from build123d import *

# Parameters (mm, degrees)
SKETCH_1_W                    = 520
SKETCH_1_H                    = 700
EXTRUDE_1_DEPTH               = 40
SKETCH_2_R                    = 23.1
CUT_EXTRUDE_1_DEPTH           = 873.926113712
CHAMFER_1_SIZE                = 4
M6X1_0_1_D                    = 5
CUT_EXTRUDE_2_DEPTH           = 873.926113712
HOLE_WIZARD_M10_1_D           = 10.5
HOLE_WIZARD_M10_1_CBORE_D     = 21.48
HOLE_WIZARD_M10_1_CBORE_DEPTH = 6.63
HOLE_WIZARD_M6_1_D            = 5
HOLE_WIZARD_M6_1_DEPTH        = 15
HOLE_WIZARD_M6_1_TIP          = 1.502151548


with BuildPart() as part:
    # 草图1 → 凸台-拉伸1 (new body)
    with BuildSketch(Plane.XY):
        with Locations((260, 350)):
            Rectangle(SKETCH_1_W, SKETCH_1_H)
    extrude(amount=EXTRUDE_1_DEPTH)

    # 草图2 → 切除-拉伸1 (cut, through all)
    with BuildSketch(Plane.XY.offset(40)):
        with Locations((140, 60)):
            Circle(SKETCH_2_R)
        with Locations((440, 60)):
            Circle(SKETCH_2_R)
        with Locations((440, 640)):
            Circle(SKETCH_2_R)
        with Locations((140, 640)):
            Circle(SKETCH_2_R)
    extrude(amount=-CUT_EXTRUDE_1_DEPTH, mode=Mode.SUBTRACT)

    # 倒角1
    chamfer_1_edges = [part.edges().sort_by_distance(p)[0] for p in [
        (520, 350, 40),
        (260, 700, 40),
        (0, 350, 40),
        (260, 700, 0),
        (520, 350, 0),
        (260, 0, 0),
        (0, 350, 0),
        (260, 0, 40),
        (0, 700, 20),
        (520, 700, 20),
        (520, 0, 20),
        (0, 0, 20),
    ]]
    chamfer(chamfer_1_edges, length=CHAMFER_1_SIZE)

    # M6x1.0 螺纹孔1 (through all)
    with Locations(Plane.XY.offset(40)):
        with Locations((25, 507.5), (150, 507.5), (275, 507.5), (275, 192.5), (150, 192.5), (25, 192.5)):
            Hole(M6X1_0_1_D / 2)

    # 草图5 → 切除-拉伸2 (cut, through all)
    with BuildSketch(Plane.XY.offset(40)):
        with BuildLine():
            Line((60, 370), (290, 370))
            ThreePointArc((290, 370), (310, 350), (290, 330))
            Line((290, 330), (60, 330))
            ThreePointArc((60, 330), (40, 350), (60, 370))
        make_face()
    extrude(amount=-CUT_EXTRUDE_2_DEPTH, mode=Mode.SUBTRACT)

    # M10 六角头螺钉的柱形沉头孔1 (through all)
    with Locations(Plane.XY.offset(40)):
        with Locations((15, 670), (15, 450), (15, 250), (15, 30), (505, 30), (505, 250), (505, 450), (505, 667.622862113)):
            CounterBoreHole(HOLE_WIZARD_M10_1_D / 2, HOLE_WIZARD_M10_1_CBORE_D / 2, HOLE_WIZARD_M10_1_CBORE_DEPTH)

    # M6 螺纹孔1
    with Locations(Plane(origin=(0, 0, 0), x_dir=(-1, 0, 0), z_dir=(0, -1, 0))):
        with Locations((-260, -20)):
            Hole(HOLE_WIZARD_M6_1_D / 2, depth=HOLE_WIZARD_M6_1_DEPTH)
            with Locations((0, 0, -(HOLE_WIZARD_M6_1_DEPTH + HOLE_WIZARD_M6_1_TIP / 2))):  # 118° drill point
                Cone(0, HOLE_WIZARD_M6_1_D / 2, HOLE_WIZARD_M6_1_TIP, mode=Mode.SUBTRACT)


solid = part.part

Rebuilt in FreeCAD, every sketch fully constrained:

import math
import FreeCAD as App
import Part
import Sketcher

V = App.Vector


def edges_at(feature, points):
    """Names of the edges that pass closest to the given points."""
    edges = feature.Shape.Edges
    near = lambda p: min(range(len(edges)), key=lambda i: edges[i].distToShape(Part.Vertex(*p))[0])
    return sorted({f"Edge{near(p) + 1}" for p in points})


def add_polygon(sketch, points):
    """Adds a closed chain of lines whose ends are joined by coincident constraints."""
    first, n = sketch.GeometryCount, len(points)
    for a, b in zip(points, points[1:] + points[:1]):
        sketch.addGeometry(Part.LineSegment(App.Vector(*a, 0), App.Vector(*b, 0)), False)
    for i in range(n):
        sketch.addConstraint(Sketcher.Constraint("Coincident", first + i, 2, first + (i + 1) % n, 1))

doc = App.newDocument("Part")
body = doc.addObject("PartDesign::Body", "Body")

# Sketch on XY plane
sketch1 = body.newObject("Sketcher::SketchObject", "Sketch")
sketch1.AttachmentSupport = (doc.getObject("XY_Plane"), [""])
sketch1.MapMode = "FlatFace"
add_polygon(sketch1, [(0, 700), (0, 0), (520, 0), (520, 700)])  # lines 0-3
sketch1.addConstraint([
    Sketcher.Constraint("Vertical", 0),
    Sketcher.Constraint("Horizontal", 1),
    Sketcher.Constraint("Vertical", 2),
    Sketcher.Constraint("Horizontal", 3),
    Sketcher.Constraint("Coincident", 0, 2, -1, 1),
    Sketcher.Constraint("DistanceX", 1, 1, 1, 2, 520.0),
    Sketcher.Constraint("DistanceY", 0, 2, 0, 1, 700.0),
])
pad1 = body.newObject("PartDesign::Pad", "Pad")
pad1.Profile = sketch1
pad1.Length = 40

# Sketch on XY plane
sketch2 = body.newObject("Sketcher::SketchObject", "Sketch001")
sketch2.AttachmentSupport = (doc.getObject("XY_Plane"), [""])
sketch2.MapMode = "FlatFace"
sketch2.AttachmentOffset = App.Placement(V(0, 0, 40), App.Rotation())
sketch2.addGeometry([
    Part.Circle(V(140, 60, 0), V(0, 0, 1), 23),
    Part.Circle(V(440, 60, 0), V(0, 0, 1), 23),
    Part.Circle(V(440, 640, 0), V(0, 0, 1), 23),
    Part.Circle(V(140, 640, 0), V(0, 0, 1), 23),
], False)
sketch2.addConstraint([
    Sketcher.Constraint("Equal", 0, 1),
    Sketcher.Constraint("Equal", 1, 2),
    Sketcher.Constraint("Equal", 2, 3),
    Sketcher.Constraint("Horizontal", 0, 3, 1, 3),
    Sketcher.Constraint("Horizontal", 2, 3, 3, 3),
    Sketcher.Constraint("Vertical", 1, 3, 2, 3),
    Sketcher.Constraint("Vertical", 0, 3, 3, 3),
    Sketcher.Constraint("Diameter", 0, 46.2),
    Sketcher.Constraint("DistanceX", -1, 1, 0, 3, 140.0),
    Sketcher.Constraint("DistanceY", -1, 1, 0, 3, 60.0),
    Sketcher.Constraint("DistanceX", -1, 1, 1, 3, 440.0),
    Sketcher.Constraint("DistanceY", -1, 1, 2, 3, 640.0),
])
pocket1 = body.newObject("PartDesign::Pocket", "Pocket")
pocket1.Profile = sketch2
pocket1.Type = "ThroughAll"
doc.recompute()

chamfer = body.newObject("PartDesign::Chamfer", "Chamfer")
chamfer.Base = (pocket1, edges_at(pocket1, [
    (520, 350, 40),
    (260, 700, 40),
    (0, 350, 40),
    (260, 700, 0),
    (520, 350, 0),
    (260, 0, 0),
    (0, 350, 0),
    (260, 0, 40),
    (0, 700, 20),
    (520, 700, 20),
    (520, 0, 20),
    (0, 0, 20),
]))
chamfer.Size = 4

# Sketch on XY plane
sketch3 = body.newObject("Sketcher::SketchObject", "Sketch002")
sketch3.AttachmentSupport = (doc.getObject("XY_Plane"), [""])
sketch3.MapMode = "FlatFace"
sketch3.AttachmentOffset = App.Placement(V(0, 0, 40), App.Rotation())
sketch3.addGeometry([
    Part.Circle(V(25, 507.5, 0), V(0, 0, 1), 2.5),  # 0
    Part.Circle(V(150, 507.5, 0), V(0, 0, 1), 2.5),  # 1
    Part.Circle(V(275, 507.5, 0), V(0, 0, 1), 2.5),  # 2
    Part.Circle(V(275, 192.5, 0), V(0, 0, 1), 2.5),  # 3
    Part.Circle(V(150, 192.5, 0), V(0, 0, 1), 2.5),  # 4
    Part.Circle(V(25, 192.5, 0), V(0, 0, 1), 2.5),  # 5
], False)
sketch3.addConstraint([
    Sketcher.Constraint("Equal", 0, 1),
    Sketcher.Constraint("Equal", 1, 2),
    Sketcher.Constraint("Equal", 2, 3),
    Sketcher.Constraint("Equal", 3, 4),
    Sketcher.Constraint("Equal", 4, 5),
    Sketcher.Constraint("Horizontal", 0, 3, 1, 3),
    Sketcher.Constraint("Horizontal", 1, 3, 2, 3),
    Sketcher.Constraint("Horizontal", 3, 3, 4, 3),
    Sketcher.Constraint("Horizontal", 4, 3, 5, 3),
    Sketcher.Constraint("Vertical", 2, 3, 3, 3),
    Sketcher.Constraint("Vertical", 1, 3, 4, 3),
    Sketcher.Constraint("Vertical", 0, 3, 5, 3),
    Sketcher.Constraint("Diameter", 0, 5.0),
    Sketcher.Constraint("DistanceX", -1, 1, 0, 3, 25.0),
    Sketcher.Constraint("DistanceX", -1, 1, 1, 3, 150.0),
    Sketcher.Constraint("DistanceX", -1, 1, 2, 3, 275.0),
    Sketcher.Constraint("DistanceY", 3, 3, 2, 3, 315.0),
    Sketcher.Constraint("DistanceY", -1, 1, 0, 3, 507.5),
])
doc.recompute()
hole = body.newObject("PartDesign::Hole", "Hole")
hole.Profile = sketch3
hole.ThreadType = "None"
hole.Diameter = 5
hole.DepthType = "ThroughAll"

# Sketch on XY plane
sketch4 = body.newObject("Sketcher::SketchObject", "Sketch003")
sketch4.AttachmentSupport = (doc.getObject("XY_Plane"), [""])
sketch4.MapMode = "FlatFace"
sketch4.AttachmentOffset = App.Placement(V(0, 0, 40), App.Rotation())
sketch4.addGeometry([
    Part.LineSegment(V(290, 370, 0), V(60, 370, 0)),
    Part.ArcOfCircle(Part.Circle(V(60, 350, 0), V(0, 0, 1), 20), math.radians(90), math.radians(270)),
    Part.LineSegment(V(60, 330, 0), V(290, 330, 0)),
    Part.ArcOfCircle(Part.Circle(V(290, 350, 0), V(0, 0, 1), 20), math.radians(-90), math.radians(90)),
], False)
sketch4.addConstraint([
    Sketcher.Constraint("Tangent", 0, 2, 1, 1),
    Sketcher.Constraint("Tangent", 1, 2, 2, 1),
    Sketcher.Constraint("Tangent", 2, 2, 3, 1),
    Sketcher.Constraint("Tangent", 3, 2, 0, 1),
    Sketcher.Constraint("Horizontal", 0),
    Sketcher.Constraint("Horizontal", 2),
    Sketcher.Constraint("Radius", 1, 20.0),
    Sketcher.Constraint("DistanceX", 0, 2, 0, 1, 230.0),
    Sketcher.Constraint("DistanceX", -1, 1, 1, 3, 60.0),
    Sketcher.Constraint("DistanceY", -1, 1, 1, 3, 350.0),
])
pocket2 = body.newObject("PartDesign::Pocket", "Pocket001")
pocket2.Profile = sketch4
pocket2.Type = "ThroughAll"

# Sketch on XY plane
sketch5 = body.newObject("Sketcher::SketchObject", "Sketch004")
sketch5.AttachmentSupport = (doc.getObject("XY_Plane"), [""])
sketch5.MapMode = "FlatFace"
sketch5.AttachmentOffset = App.Placement(V(0, 0, 40), App.Rotation())
sketch5.addGeometry([
    Part.Circle(V(15, 670, 0), V(0, 0, 1), 5),  # 0
    Part.Circle(V(15, 450, 0), V(0, 0, 1), 5),  # 1
    Part.Circle(V(15, 250, 0), V(0, 0, 1), 5),  # 2
    Part.Circle(V(15, 30, 0), V(0, 0, 1), 5),  # 3
    Part.Circle(V(505, 30, 0), V(0, 0, 1), 5),  # 4
    Part.Circle(V(505, 250, 0), V(0, 0, 1), 5),  # 5
    Part.Circle(V(505, 450, 0), V(0, 0, 1), 5),  # 6
    Part.Circle(V(505, 668, 0), V(0, 0, 1), 5),  # 7
], False)
sketch5.addConstraint([
    Sketcher.Constraint("Equal", 0, 1),
    Sketcher.Constraint("Equal", 1, 2),
    Sketcher.Constraint("Equal", 2, 3),
    Sketcher.Constraint("Equal", 3, 4),
    Sketcher.Constraint("Equal", 4, 5),
    Sketcher.Constraint("Equal", 5, 6),
    Sketcher.Constraint("Equal", 6, 7),
    Sketcher.Constraint("Horizontal", 3, 3, 4, 3),
    Sketcher.Constraint("Horizontal", 2, 3, 5, 3),
    Sketcher.Constraint("Horizontal", 1, 3, 6, 3),
    Sketcher.Constraint("Vertical", 0, 3, 1, 3),
    Sketcher.Constraint("Vertical", 1, 3, 2, 3),
    Sketcher.Constraint("Vertical", 2, 3, 3, 3),
    Sketcher.Constraint("Vertical", 4, 3, 5, 3),
    Sketcher.Constraint("Vertical", 5, 3, 6, 3),
    Sketcher.Constraint("Vertical", 6, 3, 7, 3),
    Sketcher.Constraint("Diameter", 0, 10.5),
    Sketcher.Constraint("DistanceX", -1, 1, 0, 3, 15.0),
    Sketcher.Constraint("DistanceY", -1, 1, 0, 3, 670.0),
    Sketcher.Constraint("DistanceY", -1, 1, 1, 3, 450.0),
    Sketcher.Constraint("DistanceY", -1, 1, 2, 3, 250.0),
    Sketcher.Constraint("DistanceY", -1, 1, 3, 3, 30.0),
    Sketcher.Constraint("DistanceX", -1, 1, 4, 3, 505.0),
    Sketcher.Constraint("DistanceY", -1, 1, 7, 3, 667.622862),
])
doc.recompute()
hole2 = body.newObject("PartDesign::Hole", "Hole001")
hole2.Profile = sketch5
hole2.ThreadType = "None"
hole2.Diameter = 10.5
hole2.DepthType = "ThroughAll"
hole2.HoleCutType = "Counterbore"
hole2.HoleCutDiameter = 21.48
hole2.HoleCutDepth = 6.63

# Sketch on XZ plane
sketch6 = body.newObject("Sketcher::SketchObject", "Sketch005")
sketch6.AttachmentSupport = (doc.getObject("XZ_Plane"), [""])
sketch6.MapMode = "FlatFace"
sketch6.addGeometry(Part.Circle(V(260, 20, 0), V(0, 0, 1), 2.5), False)
sketch6.addConstraint([
    Sketcher.Constraint("Diameter", 0, 5.0),
    Sketcher.Constraint("DistanceX", -1, 1, 0, 3, 260.0),
    Sketcher.Constraint("DistanceY", -1, 1, 0, 3, 20.0),
])
doc.recompute()
hole3 = body.newObject("PartDesign::Hole", "Hole002")
hole3.Profile = sketch6
hole3.ThreadType = "None"
hole3.Diameter = 5
hole3.DepthType = "Dimension"
hole3.Depth = 15
hole3.DrillPoint = "Angled"
hole3.DrillPointAngle = 118

doc.recompute()
